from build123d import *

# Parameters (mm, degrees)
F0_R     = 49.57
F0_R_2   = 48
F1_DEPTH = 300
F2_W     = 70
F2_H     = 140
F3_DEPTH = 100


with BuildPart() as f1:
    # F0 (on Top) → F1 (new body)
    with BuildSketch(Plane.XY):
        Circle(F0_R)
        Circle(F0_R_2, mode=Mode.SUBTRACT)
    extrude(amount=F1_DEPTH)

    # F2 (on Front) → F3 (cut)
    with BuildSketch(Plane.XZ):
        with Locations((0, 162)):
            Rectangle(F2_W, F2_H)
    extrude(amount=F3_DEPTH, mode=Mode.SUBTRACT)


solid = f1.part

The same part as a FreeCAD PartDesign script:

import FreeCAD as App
import Part
import Sketcher
Q = App.Units.Quantity

doc = App.newDocument("Part")
body = doc.addObject("PartDesign::Body", "Body")

# Sketch on XY plane
sketch1 = body.newObject("Sketcher::SketchObject", "Sketch")
sketch1.AttachmentSupport = (doc.getObject("XY_Plane"), [""])
sketch1.MapMode = "FlatFace"
sketch1.addGeometry([
    Part.Circle(App.Vector(0, 0, 0), App.Vector(0, 0, 1), 50),
    Part.Circle(App.Vector(0, 0, 0), App.Vector(0, 0, 1), 48),
], False)
sketch1.addConstraint([
    Sketcher.Constraint("Coincident", 0, 3, -1, 1),
    Sketcher.Constraint("Coincident", 1, 3, -1, 1),
    Sketcher.Constraint("Diameter", 1, Q("96 mm")),
    Sketcher.Constraint("Diameter", 0, Q("99.14 mm")),
])
pad1 = body.newObject("PartDesign::Pad", "Pad")
pad1.Profile = sketch1
pad1.Length = 300

# Sketch on XZ plane
sketch2 = body.newObject("Sketcher::SketchObject", "Sketch001")
sketch2.AttachmentSupport = (doc.getObject("XZ_Plane"), [""])
sketch2.MapMode = "FlatFace"
sketch2.addGeometry([
    Part.LineSegment(App.Vector(-35, 232, 0), App.Vector(-35, 92, 0)),
    Part.LineSegment(App.Vector(-35, 92, 0), App.Vector(35, 92, 0)),
    Part.LineSegment(App.Vector(35, 92, 0), App.Vector(35, 232, 0)),
    Part.LineSegment(App.Vector(35, 232, 0), App.Vector(-35, 232, 0)),
], False)
sketch2.addConstraint([
    Sketcher.Constraint("Coincident", 0, 2, 1, 1),
    Sketcher.Constraint("Coincident", 1, 2, 2, 1),
    Sketcher.Constraint("Coincident", 2, 2, 3, 1),
    Sketcher.Constraint("Coincident", 3, 2, 0, 1),
    Sketcher.Constraint("Vertical", 0),
    Sketcher.Constraint("Horizontal", 1),
    Sketcher.Constraint("Vertical", 2),
    Sketcher.Constraint("Horizontal", 3),
    Sketcher.Constraint("DistanceX", 1, 1, 1, 2, Q("70 mm")),
    Sketcher.Constraint("DistanceY", 0, 2, 0, 1, Q("140 mm")),
    Sketcher.Constraint("DistanceX", 0, 2, -1, 1, Q("35 mm")),
    Sketcher.Constraint("DistanceY", -1, 1, 0, 2, Q("92 mm")),
])
pocket1 = body.newObject("PartDesign::Pocket", "Pocket")
pocket1.Profile = sketch2
pocket1.Length = 100
pocket1.Reversed = True

doc.recompute()
